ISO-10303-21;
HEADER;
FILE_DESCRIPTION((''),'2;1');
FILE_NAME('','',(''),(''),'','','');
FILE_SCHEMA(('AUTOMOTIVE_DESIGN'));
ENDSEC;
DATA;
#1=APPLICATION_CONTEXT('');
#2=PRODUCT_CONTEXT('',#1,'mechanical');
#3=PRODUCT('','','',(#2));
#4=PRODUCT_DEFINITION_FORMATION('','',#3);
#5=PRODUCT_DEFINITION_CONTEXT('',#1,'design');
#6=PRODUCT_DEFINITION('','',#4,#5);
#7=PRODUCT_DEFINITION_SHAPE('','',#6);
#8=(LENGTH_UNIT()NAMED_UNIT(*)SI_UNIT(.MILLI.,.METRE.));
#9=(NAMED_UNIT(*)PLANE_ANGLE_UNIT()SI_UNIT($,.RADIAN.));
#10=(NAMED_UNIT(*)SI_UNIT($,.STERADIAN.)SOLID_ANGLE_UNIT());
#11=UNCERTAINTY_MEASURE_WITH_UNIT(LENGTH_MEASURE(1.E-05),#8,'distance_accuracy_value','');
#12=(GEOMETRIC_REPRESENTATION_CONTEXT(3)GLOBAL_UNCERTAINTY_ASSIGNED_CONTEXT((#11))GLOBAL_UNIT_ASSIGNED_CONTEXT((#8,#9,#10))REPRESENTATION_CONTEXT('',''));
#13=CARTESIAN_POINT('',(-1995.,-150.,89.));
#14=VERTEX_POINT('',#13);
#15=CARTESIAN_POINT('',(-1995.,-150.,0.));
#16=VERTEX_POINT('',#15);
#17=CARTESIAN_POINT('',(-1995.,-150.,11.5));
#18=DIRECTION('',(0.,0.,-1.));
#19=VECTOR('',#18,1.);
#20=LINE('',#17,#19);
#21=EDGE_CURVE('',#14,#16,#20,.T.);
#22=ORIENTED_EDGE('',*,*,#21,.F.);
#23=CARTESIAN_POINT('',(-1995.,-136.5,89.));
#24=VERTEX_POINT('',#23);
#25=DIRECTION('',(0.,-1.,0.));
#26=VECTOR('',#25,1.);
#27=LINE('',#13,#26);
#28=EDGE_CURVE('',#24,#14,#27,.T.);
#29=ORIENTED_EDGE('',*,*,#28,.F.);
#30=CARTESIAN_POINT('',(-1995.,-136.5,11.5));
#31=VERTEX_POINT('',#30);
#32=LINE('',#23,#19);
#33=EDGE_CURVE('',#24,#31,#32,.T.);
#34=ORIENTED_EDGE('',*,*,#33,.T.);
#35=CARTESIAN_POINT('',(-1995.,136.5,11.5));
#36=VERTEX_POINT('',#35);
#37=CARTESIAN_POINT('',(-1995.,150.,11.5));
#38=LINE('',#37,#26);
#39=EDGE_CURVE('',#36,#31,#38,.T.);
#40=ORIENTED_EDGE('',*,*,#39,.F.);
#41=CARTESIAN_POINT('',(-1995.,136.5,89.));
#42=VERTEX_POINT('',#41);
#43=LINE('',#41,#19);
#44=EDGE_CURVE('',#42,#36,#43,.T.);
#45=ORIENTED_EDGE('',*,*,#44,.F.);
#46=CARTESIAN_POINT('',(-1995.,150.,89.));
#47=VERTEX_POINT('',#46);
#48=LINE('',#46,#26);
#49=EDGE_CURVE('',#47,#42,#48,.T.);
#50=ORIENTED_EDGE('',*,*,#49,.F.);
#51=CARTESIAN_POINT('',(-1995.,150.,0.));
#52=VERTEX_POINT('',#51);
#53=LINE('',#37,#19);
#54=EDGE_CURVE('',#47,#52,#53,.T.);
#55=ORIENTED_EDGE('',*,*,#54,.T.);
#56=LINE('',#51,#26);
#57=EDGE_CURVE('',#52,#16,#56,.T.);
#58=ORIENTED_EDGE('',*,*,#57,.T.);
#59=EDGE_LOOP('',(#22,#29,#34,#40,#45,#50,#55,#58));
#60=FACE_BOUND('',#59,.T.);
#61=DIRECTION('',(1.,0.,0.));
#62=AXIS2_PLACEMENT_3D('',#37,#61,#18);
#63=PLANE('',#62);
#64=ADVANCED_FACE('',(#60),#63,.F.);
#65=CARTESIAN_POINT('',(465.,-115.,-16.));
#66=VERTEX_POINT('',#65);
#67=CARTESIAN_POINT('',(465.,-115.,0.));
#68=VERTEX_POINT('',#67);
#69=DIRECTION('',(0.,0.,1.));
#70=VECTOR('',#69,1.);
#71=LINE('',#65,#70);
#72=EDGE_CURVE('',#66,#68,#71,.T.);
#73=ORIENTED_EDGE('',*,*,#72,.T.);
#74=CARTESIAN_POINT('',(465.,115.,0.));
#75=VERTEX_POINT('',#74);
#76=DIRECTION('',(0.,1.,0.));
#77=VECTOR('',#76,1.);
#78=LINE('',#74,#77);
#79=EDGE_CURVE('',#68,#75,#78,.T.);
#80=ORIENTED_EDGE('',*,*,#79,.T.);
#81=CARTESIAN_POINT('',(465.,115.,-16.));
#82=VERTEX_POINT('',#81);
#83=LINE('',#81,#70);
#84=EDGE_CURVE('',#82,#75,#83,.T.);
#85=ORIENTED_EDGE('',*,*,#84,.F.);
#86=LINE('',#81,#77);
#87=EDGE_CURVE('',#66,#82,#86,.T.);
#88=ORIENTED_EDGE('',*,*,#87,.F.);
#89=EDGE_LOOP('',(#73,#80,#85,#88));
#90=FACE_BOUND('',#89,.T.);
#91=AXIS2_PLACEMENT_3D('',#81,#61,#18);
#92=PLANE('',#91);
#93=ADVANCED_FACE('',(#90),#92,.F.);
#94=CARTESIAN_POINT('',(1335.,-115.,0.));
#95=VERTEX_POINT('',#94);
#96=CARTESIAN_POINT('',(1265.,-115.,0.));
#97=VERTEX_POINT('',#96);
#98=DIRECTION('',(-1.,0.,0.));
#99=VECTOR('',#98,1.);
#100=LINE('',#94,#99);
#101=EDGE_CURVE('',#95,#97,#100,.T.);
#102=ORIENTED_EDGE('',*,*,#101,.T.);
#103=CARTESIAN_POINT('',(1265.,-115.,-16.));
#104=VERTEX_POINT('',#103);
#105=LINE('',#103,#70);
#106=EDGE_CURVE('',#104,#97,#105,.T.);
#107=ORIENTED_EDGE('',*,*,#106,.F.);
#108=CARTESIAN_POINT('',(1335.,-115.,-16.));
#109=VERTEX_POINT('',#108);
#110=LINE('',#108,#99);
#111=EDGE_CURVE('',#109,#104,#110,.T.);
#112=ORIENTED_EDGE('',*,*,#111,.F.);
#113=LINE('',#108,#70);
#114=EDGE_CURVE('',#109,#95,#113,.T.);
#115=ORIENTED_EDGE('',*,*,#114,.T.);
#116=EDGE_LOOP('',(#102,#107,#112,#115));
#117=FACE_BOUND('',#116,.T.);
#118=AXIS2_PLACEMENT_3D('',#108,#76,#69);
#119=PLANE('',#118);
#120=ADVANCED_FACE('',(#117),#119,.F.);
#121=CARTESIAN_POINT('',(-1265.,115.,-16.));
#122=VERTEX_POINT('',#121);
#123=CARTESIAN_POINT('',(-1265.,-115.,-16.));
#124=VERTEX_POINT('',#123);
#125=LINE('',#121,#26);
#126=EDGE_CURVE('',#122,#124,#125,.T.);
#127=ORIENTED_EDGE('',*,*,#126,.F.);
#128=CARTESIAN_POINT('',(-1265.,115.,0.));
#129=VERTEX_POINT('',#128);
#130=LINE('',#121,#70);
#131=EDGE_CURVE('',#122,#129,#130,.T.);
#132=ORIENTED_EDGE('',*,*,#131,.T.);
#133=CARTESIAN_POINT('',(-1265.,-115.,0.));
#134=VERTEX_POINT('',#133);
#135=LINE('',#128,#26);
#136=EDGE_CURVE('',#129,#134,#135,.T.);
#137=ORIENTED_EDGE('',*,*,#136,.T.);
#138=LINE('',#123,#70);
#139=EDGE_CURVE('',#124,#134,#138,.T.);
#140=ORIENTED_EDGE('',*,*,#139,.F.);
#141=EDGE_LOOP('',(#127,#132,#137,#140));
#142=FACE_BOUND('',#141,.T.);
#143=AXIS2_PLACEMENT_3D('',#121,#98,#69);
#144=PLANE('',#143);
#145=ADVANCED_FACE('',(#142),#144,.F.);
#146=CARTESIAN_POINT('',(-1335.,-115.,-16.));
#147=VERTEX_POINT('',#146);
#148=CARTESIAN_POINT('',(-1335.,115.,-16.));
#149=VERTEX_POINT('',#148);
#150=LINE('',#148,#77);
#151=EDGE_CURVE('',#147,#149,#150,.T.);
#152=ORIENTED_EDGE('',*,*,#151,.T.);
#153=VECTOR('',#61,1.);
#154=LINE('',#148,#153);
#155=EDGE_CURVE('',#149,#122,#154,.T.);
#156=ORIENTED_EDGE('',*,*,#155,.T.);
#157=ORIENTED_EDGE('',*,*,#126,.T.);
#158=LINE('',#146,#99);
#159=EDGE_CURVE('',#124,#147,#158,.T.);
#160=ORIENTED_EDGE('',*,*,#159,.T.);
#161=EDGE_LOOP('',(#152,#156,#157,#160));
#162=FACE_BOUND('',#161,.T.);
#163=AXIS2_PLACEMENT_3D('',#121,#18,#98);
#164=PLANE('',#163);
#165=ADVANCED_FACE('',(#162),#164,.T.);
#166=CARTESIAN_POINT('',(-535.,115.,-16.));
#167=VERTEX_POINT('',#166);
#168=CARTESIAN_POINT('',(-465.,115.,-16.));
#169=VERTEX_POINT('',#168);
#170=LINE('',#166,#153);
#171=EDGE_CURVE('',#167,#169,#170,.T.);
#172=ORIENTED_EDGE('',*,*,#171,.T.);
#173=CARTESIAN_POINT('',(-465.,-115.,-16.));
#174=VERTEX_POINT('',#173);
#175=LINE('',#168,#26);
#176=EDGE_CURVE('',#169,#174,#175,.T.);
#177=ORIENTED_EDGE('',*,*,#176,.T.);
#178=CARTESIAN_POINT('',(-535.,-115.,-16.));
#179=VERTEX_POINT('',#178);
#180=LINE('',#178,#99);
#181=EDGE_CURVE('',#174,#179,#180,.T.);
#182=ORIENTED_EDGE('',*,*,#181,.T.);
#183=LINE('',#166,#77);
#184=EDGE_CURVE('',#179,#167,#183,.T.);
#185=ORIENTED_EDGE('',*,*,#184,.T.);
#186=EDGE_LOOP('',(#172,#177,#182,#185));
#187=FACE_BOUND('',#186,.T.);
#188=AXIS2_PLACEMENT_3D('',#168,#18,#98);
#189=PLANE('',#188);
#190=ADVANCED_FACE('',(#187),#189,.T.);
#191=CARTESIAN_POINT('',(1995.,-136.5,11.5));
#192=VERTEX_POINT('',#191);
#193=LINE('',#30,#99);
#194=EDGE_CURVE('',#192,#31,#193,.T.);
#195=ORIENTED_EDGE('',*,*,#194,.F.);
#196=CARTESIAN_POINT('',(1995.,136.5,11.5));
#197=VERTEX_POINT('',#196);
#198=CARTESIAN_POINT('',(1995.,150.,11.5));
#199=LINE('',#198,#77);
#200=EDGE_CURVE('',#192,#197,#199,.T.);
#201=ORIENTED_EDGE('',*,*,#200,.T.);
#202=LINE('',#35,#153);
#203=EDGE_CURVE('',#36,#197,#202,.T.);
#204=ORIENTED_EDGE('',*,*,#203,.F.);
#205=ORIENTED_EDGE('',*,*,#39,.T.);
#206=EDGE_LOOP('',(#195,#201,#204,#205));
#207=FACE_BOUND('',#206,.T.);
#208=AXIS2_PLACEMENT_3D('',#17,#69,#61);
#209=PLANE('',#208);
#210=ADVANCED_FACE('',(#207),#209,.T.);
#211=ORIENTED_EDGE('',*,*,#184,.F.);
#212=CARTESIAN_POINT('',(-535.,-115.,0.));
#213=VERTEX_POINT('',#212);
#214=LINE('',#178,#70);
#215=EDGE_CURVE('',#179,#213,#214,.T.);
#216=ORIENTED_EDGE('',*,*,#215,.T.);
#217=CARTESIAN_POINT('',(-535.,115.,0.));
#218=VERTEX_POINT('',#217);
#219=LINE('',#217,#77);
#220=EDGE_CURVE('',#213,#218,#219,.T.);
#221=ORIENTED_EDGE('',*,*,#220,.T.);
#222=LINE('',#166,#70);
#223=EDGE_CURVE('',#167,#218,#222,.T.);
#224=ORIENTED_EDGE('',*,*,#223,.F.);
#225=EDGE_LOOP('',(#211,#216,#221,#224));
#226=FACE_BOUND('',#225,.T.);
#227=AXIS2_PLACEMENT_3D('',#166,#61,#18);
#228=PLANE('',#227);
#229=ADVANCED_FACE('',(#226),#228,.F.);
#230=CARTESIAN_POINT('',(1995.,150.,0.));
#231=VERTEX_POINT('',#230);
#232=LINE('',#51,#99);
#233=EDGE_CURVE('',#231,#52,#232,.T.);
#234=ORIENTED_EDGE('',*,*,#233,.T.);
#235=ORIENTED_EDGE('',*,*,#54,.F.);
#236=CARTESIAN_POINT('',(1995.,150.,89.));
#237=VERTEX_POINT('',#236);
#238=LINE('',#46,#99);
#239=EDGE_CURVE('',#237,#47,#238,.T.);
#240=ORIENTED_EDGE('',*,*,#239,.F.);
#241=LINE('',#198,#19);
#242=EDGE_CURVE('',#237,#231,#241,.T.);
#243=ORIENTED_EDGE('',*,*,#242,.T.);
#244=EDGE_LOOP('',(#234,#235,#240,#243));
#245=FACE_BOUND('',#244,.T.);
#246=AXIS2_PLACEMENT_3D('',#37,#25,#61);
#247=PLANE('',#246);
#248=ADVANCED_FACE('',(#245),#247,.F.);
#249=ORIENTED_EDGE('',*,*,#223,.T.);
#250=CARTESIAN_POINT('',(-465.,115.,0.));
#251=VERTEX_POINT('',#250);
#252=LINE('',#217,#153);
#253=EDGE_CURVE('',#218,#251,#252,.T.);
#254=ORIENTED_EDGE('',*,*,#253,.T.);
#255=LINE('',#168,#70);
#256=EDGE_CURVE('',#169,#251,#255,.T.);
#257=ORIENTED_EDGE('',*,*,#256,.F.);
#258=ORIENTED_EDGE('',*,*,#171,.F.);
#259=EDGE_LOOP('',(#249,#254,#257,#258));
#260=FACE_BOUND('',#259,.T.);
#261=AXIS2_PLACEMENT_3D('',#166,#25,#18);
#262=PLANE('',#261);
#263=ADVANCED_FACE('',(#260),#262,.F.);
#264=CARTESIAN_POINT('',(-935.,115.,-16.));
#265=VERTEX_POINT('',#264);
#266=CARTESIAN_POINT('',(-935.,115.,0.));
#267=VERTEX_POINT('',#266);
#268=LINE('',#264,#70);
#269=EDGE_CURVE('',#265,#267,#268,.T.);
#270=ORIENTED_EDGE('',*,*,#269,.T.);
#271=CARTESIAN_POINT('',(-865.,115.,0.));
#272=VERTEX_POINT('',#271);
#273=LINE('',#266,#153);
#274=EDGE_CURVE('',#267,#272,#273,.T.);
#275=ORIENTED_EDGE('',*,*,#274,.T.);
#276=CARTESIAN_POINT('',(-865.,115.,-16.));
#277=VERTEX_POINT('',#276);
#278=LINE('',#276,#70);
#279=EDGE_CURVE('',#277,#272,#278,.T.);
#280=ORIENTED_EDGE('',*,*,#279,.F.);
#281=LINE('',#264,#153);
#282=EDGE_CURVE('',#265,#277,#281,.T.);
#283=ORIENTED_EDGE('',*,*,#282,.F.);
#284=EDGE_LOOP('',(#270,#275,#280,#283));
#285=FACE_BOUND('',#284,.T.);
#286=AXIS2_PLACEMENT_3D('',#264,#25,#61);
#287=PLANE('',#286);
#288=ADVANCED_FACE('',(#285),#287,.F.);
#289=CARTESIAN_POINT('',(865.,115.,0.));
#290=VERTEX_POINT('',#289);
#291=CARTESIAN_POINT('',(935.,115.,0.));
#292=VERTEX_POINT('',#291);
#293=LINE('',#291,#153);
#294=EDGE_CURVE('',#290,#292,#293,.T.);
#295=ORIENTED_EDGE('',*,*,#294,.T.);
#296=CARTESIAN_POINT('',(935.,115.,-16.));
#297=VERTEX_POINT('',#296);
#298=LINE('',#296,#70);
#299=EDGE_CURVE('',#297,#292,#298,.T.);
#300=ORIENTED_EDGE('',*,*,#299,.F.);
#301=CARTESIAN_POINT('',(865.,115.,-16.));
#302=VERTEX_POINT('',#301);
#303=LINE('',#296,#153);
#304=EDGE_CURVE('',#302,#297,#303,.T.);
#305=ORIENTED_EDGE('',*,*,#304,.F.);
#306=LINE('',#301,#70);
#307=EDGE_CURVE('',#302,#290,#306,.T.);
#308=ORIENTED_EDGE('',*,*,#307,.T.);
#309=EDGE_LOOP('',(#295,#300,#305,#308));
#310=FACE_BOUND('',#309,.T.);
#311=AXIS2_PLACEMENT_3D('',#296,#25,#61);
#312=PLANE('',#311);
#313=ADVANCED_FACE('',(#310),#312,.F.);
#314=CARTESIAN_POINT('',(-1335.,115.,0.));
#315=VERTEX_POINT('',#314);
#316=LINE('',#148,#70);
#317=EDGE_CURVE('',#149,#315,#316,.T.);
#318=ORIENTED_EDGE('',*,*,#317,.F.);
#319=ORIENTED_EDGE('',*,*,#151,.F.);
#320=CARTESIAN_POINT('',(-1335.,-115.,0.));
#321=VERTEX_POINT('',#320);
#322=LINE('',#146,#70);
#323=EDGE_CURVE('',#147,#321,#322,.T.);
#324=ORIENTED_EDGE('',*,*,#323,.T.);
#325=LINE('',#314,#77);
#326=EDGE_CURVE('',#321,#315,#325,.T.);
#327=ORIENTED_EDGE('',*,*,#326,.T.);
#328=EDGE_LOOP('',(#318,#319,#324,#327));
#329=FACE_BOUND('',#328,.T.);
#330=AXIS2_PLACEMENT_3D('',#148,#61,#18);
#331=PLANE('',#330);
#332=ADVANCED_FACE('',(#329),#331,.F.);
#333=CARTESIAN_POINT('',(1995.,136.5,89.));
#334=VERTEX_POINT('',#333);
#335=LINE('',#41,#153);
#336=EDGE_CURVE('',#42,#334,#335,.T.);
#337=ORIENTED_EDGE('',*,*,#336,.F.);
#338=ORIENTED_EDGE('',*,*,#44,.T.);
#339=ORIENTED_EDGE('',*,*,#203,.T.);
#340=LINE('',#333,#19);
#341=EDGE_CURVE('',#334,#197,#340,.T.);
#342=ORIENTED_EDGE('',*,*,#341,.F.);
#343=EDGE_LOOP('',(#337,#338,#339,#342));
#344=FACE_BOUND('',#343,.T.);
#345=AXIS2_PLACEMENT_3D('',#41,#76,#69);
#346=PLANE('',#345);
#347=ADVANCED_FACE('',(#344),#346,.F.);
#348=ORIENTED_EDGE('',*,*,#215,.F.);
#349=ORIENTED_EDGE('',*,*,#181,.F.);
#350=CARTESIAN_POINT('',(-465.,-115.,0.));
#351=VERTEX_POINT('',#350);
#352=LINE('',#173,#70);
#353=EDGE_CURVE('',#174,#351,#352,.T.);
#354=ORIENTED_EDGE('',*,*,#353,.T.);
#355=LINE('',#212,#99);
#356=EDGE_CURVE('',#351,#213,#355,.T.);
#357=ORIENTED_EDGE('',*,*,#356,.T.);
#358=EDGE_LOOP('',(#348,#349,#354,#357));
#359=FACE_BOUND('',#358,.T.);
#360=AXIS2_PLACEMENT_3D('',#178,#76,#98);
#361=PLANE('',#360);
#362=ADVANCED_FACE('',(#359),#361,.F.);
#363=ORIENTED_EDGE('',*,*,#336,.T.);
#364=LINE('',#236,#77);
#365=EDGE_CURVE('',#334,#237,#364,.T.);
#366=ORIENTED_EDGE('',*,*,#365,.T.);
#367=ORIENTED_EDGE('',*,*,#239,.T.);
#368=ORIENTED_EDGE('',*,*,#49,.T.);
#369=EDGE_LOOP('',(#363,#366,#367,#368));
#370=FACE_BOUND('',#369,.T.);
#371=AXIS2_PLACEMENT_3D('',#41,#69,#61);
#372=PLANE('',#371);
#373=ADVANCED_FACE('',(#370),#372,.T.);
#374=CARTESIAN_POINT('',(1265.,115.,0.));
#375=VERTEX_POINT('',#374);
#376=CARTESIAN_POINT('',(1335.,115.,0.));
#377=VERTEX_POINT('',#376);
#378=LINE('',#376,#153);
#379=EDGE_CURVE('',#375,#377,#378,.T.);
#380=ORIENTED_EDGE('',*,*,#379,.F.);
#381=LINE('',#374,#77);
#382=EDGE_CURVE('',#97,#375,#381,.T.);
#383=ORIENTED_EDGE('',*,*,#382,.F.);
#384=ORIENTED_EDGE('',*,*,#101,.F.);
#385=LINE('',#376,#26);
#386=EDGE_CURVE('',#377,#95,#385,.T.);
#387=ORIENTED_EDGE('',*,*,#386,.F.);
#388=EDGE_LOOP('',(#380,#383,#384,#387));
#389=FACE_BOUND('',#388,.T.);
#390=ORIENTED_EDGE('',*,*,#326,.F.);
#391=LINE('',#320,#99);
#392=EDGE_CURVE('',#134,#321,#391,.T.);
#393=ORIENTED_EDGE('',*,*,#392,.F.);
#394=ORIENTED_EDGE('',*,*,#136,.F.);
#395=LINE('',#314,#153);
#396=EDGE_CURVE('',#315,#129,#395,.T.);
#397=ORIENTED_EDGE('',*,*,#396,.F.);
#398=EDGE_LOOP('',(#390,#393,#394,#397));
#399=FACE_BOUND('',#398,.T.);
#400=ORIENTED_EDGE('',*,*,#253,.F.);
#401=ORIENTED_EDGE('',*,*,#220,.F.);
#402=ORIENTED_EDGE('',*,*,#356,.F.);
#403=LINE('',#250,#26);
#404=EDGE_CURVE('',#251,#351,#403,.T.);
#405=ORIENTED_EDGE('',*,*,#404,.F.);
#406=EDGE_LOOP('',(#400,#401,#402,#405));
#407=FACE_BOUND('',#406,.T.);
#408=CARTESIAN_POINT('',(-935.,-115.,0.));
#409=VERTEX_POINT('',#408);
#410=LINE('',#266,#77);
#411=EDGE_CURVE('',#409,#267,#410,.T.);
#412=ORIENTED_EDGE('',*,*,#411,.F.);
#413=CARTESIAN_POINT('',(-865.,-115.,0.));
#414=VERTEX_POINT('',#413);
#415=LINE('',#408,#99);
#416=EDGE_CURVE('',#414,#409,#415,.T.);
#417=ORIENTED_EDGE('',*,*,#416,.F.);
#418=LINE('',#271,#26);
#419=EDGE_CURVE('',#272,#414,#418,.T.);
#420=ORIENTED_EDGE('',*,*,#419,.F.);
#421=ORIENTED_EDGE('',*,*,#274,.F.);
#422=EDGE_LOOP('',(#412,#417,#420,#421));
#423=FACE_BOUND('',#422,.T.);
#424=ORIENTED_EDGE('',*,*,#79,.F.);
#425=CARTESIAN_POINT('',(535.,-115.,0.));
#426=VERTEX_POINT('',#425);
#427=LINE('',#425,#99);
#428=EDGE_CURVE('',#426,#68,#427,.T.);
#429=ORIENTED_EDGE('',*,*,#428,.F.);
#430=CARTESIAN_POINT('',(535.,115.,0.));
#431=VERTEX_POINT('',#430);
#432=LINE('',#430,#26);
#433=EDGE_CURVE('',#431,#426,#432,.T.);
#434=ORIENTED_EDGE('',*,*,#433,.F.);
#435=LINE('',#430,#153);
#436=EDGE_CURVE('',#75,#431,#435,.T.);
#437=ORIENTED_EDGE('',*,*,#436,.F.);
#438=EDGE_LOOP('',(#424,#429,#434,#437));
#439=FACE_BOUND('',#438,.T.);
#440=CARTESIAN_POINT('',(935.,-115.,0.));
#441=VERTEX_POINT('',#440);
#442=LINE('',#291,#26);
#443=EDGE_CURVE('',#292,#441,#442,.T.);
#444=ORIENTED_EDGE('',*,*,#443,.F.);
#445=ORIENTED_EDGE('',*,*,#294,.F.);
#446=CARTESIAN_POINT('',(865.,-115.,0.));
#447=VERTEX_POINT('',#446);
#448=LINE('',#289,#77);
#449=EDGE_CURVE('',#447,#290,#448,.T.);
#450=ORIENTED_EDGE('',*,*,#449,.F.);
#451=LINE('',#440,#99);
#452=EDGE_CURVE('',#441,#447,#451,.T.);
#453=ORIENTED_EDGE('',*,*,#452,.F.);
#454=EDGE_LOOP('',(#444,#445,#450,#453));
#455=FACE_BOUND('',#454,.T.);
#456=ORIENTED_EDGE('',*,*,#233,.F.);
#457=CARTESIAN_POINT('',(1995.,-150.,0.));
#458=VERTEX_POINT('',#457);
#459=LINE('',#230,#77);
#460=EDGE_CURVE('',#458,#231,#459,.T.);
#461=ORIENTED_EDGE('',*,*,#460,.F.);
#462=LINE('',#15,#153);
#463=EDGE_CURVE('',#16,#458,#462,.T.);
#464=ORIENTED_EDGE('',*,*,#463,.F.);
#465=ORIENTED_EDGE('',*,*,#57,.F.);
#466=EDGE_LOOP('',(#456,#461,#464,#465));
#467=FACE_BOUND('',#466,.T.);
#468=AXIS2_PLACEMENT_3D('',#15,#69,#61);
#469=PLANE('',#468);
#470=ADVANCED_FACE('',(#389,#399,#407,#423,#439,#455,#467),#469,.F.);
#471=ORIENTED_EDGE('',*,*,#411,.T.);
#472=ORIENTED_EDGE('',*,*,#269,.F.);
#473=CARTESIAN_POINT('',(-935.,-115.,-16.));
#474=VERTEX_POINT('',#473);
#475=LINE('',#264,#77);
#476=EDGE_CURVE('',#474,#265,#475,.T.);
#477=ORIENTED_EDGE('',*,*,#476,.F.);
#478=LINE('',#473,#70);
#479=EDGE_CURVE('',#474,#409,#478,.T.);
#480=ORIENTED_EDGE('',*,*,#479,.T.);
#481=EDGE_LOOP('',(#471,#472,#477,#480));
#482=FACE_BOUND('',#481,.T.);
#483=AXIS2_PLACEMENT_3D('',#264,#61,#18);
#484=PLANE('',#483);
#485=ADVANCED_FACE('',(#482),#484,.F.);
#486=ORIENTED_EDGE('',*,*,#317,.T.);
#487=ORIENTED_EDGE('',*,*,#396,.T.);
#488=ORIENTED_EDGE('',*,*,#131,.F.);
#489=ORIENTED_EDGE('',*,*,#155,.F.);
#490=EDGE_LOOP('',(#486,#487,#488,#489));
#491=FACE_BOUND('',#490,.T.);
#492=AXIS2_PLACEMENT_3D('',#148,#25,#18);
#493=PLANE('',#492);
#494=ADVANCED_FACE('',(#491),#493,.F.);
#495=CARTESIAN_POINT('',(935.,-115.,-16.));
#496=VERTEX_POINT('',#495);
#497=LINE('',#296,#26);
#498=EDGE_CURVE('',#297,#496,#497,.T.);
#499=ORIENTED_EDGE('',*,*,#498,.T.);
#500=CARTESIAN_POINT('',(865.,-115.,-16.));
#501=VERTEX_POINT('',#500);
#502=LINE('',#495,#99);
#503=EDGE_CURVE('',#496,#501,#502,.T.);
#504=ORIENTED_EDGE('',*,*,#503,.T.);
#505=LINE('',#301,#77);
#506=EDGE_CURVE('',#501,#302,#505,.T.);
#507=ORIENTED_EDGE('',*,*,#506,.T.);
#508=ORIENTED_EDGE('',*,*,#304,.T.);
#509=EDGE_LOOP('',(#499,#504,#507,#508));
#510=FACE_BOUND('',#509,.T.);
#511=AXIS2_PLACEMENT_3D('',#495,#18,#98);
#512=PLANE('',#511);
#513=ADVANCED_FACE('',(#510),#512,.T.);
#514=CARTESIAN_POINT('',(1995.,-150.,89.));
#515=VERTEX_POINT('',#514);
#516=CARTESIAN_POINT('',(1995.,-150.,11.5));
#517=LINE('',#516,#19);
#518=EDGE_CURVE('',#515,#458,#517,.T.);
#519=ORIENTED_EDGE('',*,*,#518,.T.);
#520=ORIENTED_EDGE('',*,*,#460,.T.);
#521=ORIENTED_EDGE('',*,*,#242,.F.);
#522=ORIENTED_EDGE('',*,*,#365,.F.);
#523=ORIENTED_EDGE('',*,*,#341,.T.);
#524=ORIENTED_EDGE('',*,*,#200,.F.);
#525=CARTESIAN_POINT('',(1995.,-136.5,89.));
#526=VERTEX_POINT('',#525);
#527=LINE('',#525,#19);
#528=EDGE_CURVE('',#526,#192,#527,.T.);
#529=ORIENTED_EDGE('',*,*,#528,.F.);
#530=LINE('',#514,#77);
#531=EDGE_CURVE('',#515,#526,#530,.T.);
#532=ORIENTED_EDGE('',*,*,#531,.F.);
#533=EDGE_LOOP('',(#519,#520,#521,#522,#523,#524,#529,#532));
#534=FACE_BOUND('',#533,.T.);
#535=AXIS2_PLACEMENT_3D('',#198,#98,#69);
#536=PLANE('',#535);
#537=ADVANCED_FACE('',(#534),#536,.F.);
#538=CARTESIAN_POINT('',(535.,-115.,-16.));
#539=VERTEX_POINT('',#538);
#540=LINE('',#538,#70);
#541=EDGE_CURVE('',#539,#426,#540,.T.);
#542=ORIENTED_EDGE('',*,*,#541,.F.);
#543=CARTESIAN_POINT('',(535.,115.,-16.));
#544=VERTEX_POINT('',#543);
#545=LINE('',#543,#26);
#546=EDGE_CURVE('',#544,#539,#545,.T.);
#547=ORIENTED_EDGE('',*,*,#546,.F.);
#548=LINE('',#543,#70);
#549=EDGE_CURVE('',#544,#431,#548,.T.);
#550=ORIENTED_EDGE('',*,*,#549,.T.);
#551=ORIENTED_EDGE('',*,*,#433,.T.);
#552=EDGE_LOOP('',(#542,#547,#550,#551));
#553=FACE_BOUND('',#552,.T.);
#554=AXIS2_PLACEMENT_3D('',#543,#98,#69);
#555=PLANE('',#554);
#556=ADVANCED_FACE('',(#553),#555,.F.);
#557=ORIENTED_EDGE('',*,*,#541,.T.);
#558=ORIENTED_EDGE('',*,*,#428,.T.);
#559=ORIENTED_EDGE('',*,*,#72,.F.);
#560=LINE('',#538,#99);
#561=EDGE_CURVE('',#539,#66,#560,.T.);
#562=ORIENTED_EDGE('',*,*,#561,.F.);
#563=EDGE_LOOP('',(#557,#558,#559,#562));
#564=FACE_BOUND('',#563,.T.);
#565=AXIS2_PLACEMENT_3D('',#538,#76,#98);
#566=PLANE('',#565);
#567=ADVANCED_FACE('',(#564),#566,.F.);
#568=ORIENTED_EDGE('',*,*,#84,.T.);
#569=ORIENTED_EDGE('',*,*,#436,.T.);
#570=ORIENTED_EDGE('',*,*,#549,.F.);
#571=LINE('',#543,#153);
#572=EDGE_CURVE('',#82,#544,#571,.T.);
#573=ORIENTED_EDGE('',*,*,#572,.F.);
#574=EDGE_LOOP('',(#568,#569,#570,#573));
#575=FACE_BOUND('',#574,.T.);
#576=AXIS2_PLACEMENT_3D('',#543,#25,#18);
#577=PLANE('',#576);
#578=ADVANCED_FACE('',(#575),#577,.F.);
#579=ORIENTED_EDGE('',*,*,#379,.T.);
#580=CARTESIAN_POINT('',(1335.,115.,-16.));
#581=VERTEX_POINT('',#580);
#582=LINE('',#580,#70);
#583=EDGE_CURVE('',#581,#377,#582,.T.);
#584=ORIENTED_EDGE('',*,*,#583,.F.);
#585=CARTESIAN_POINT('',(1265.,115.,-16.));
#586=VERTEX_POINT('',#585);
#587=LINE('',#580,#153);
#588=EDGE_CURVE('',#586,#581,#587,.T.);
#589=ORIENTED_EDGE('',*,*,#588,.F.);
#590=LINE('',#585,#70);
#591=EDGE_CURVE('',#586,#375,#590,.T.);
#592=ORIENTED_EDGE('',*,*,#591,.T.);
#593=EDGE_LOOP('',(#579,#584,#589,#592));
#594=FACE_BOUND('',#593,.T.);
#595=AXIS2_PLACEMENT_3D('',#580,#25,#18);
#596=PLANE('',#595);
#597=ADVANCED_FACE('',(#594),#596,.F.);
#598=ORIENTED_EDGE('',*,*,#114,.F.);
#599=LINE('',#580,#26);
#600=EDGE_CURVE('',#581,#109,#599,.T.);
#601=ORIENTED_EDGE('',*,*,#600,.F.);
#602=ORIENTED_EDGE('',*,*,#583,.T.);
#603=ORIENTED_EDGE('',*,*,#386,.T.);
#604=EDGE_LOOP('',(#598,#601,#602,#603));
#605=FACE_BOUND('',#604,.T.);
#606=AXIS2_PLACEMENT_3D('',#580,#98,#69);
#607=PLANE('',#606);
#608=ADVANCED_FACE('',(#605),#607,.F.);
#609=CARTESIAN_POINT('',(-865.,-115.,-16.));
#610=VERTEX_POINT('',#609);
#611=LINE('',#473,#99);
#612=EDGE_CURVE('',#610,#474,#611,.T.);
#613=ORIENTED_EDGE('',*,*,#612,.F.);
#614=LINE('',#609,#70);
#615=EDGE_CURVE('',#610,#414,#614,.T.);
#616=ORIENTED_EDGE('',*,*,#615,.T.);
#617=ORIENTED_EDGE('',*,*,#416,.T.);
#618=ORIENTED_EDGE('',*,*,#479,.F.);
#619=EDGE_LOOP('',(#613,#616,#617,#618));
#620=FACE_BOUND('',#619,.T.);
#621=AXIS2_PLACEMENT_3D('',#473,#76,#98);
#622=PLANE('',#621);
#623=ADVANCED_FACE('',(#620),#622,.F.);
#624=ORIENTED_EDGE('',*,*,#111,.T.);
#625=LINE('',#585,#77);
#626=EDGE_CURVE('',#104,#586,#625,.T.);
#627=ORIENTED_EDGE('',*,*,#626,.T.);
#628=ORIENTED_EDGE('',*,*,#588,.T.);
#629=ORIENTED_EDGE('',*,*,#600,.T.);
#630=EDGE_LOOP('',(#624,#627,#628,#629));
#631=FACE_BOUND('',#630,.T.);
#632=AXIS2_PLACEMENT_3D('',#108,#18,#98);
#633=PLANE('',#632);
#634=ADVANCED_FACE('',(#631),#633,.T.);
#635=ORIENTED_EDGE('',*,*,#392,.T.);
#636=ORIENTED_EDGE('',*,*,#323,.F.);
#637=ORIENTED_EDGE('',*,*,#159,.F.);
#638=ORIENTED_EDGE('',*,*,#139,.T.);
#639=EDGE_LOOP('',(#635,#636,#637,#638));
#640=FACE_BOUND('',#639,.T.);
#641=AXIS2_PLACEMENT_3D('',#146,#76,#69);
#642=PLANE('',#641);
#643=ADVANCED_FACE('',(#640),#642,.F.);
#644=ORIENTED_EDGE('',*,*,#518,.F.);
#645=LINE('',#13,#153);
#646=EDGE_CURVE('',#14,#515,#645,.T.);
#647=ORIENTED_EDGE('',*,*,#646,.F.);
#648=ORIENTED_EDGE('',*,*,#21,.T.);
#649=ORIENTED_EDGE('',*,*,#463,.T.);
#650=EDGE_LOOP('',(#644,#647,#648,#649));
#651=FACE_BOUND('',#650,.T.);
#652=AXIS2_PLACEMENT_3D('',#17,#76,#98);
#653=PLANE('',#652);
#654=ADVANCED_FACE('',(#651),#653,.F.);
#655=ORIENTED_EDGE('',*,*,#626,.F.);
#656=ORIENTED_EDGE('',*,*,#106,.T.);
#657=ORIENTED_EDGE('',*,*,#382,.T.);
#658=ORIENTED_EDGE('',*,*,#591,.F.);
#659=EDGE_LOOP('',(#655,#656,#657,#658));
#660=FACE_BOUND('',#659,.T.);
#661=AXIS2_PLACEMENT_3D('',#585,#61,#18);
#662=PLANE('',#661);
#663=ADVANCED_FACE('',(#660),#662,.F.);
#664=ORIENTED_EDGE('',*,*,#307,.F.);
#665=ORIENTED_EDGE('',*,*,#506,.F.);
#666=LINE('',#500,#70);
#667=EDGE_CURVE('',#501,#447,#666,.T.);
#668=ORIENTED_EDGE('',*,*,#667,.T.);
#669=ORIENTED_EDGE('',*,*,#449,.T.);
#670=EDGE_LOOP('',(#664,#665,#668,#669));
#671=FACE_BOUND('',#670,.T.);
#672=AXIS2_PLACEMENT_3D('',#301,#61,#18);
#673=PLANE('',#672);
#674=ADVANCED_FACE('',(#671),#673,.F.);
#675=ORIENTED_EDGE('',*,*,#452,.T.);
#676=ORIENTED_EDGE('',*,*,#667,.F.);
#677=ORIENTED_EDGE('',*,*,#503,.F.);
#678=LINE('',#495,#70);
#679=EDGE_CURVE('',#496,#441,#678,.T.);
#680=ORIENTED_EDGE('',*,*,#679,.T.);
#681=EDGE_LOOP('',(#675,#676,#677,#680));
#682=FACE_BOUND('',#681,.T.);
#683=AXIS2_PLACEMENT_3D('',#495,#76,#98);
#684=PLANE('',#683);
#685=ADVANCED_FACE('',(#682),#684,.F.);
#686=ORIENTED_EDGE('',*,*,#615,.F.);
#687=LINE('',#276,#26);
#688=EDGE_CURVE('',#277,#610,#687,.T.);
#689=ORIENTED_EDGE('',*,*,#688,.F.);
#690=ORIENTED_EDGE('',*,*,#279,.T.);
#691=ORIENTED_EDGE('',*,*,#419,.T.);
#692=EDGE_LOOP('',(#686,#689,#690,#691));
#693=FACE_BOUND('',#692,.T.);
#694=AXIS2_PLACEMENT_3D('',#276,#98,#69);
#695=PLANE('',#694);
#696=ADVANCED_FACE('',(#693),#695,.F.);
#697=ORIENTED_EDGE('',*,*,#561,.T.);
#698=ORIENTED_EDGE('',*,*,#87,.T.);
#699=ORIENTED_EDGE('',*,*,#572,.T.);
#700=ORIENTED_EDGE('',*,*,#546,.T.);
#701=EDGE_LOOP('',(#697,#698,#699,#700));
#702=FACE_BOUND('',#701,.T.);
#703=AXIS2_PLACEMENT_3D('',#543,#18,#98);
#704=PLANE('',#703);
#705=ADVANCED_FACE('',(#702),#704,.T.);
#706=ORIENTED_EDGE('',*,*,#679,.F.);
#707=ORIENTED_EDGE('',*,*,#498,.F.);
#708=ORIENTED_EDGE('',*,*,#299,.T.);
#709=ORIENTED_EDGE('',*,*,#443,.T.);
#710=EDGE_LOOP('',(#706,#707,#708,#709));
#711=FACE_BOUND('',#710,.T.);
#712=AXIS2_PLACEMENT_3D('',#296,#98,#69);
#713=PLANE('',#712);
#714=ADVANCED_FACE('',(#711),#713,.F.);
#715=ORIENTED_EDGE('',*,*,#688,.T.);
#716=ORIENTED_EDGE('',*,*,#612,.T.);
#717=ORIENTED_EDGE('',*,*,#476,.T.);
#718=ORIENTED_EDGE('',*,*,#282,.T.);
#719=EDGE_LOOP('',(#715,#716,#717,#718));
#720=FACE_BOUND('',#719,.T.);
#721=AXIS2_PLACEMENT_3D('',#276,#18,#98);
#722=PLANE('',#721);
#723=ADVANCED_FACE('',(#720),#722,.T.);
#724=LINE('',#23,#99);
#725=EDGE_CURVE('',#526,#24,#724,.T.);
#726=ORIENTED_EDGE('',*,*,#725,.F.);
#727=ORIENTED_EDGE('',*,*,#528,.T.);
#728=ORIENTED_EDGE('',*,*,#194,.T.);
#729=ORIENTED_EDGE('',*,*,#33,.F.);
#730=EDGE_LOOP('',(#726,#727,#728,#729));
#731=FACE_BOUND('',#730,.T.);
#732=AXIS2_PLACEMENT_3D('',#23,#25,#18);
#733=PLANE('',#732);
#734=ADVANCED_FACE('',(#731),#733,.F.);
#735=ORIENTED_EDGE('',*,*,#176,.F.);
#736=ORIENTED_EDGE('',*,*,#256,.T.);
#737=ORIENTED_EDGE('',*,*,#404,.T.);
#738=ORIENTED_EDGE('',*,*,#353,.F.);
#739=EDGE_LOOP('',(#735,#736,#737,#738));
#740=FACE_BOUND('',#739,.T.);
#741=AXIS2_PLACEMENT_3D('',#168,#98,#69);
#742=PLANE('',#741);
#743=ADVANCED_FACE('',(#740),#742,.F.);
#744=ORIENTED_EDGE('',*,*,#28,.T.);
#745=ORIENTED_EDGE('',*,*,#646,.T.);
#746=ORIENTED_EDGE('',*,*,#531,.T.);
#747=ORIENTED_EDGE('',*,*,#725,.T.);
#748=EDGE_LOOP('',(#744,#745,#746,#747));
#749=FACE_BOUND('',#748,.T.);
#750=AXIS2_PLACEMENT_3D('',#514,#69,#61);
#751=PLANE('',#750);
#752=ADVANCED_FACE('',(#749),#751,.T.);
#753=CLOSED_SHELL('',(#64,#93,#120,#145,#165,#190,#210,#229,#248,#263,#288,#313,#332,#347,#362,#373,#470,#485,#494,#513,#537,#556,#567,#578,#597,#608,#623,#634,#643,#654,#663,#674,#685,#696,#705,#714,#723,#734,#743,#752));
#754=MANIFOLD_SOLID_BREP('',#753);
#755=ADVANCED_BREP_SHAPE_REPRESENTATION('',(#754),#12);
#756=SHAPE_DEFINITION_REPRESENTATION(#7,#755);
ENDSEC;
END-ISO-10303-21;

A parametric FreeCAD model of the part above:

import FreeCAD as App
import Part
import Sketcher
Q = App.Units.Quantity


def add_polygon(sketch, points):
    """Adds a closed chain of lines whose ends are joined by coincident constraints."""
    first, n = sketch.GeometryCount, len(points)
    for a, b in zip(points, points[1:] + points[:1]):
        sketch.addGeometry(Part.LineSegment(App.Vector(*a, 0), App.Vector(*b, 0)), False)
    for i in range(n):
        sketch.addConstraint(Sketcher.Constraint("Coincident", first + i, 2, first + (i + 1) % n, 1))

doc = App.newDocument("Part")
body = doc.addObject("PartDesign::Body", "Body")

# Sketch on XY plane
sketch1 = doc.addObject("Sketcher::SketchObject", "Sketch")
body.addObject(sketch1)
sketch1.AttachmentSupport = (doc.XY_Plane, [""])
sketch1.MapMode = "FlatFace"
add_polygon(sketch1, [(-1995, 150), (-1995, -150), (1995, -150), (1995, 150)])  # lines 0-3
sketch1.addGeometry(Part.Circle(App.Vector(-1940, -80, 0), App.Vector(0, 0, 1), 13), False)  # 4
sketch1.addGeometry(Part.Circle(App.Vector(-1860, -80, 0), App.Vector(0, 0, 1), 13), False)  # 5
sketch1.addGeometry(Part.Circle(App.Vector(-1780, -80, 0), App.Vector(0, 0, 1), 13), False)  # 6
sketch1.addGeometry(Part.Circle(App.Vector(-1700, -80, 0), App.Vector(0, 0, 1), 13), False)  # 7
sketch1.addGeometry(Part.Circle(App.Vector(-140, -80, 0), App.Vector(0, 0, 1), 13), False)  # 8
sketch1.addGeometry(Part.Circle(App.Vector(-60, -80, 0), App.Vector(0, 0, 1), 13), False)  # 9
sketch1.addGeometry(Part.Circle(App.Vector(60, -80, 0), App.Vector(0, 0, 1), 13), False)  # 10
sketch1.addGeometry(Part.Circle(App.Vector(140, -80, 0), App.Vector(0, 0, 1), 13), False)  # 11
sketch1.addGeometry(Part.Circle(App.Vector(1700, -80, 0), App.Vector(0, 0, 1), 13), False)  # 12
sketch1.addGeometry(Part.Circle(App.Vector(1780, -80, 0), App.Vector(0, 0, 1), 13), False)  # 13
sketch1.addGeometry(Part.Circle(App.Vector(1860, -80, 0), App.Vector(0, 0, 1), 13), False)  # 14
sketch1.addGeometry(Part.Circle(App.Vector(1940, -80, 0), App.Vector(0, 0, 1), 13), False)  # 15
sketch1.addGeometry(Part.Circle(App.Vector(-1940, 0, 0), App.Vector(0, 0, 1), 13), False)  # 16
sketch1.addGeometry(Part.Circle(App.Vector(-1860, 0, 0), App.Vector(0, 0, 1), 13), False)  # 17
sketch1.addGeometry(Part.Circle(App.Vector(-1780, 0, 0), App.Vector(0, 0, 1), 13), False)  # 18
sketch1.addGeometry(Part.Circle(App.Vector(-1700, 0, 0), App.Vector(0, 0, 1), 13), False)  # 19
sketch1.addGeometry(Part.Circle(App.Vector(-1940, 80, 0), App.Vector(0, 0, 1), 13), False)  # 20
sketch1.addGeometry(Part.Circle(App.Vector(-1860, 80, 0), App.Vector(0, 0, 1), 13), False)  # 21
sketch1.addGeometry(Part.Circle(App.Vector(-1780, 80, 0), App.Vector(0, 0, 1), 13), False)  # 22
sketch1.addGeometry(Part.Circle(App.Vector(-1700, 80, 0), App.Vector(0, 0, 1), 13), False)  # 23
sketch1.addGeometry(Part.Circle(App.Vector(-140, 80, 0), App.Vector(0, 0, 1), 13), False)  # 24
sketch1.addGeometry(Part.Circle(App.Vector(-60, 80, 0), App.Vector(0, 0, 1), 13), False)  # 25
sketch1.addGeometry(Part.Circle(App.Vector(1700, 0, 0), App.Vector(0, 0, 1), 13), False)  # 26
sketch1.addGeometry(Part.Circle(App.Vector(1780, 0, 0), App.Vector(0, 0, 1), 13), False)  # 27
sketch1.addGeometry(Part.Circle(App.Vector(1860, 0, 0), App.Vector(0, 0, 1), 13), False)  # 28
sketch1.addGeometry(Part.Circle(App.Vector(1940, 0, 0), App.Vector(0, 0, 1), 13), False)  # 29
sketch1.addGeometry(Part.Circle(App.Vector(60, 80, 0), App.Vector(0, 0, 1), 13), False)  # 30
sketch1.addGeometry(Part.Circle(App.Vector(140, 80, 0), App.Vector(0, 0, 1), 13), False)  # 31
sketch1.addGeometry(Part.Circle(App.Vector(1700, 80, 0), App.Vector(0, 0, 1), 13), False)  # 32
sketch1.addGeometry(Part.Circle(App.Vector(1780, 80, 0), App.Vector(0, 0, 1), 13), False)  # 33
sketch1.addGeometry(Part.Circle(App.Vector(1860, 80, 0), App.Vector(0, 0, 1), 13), False)  # 34
sketch1.addGeometry(Part.Circle(App.Vector(1940, 80, 0), App.Vector(0, 0, 1), 13), False)  # 35
sketch1.addConstraint([
    Sketcher.Constraint("Vertical", 0),
    Sketcher.Constraint("Horizontal", 1),
    Sketcher.Constraint("Vertical", 2),
    Sketcher.Constraint("Horizontal", 3),
    Sketcher.Constraint("Equal", 4, 5),
    Sketcher.Constraint("Equal", 5, 6),
    Sketcher.Constraint("Equal", 6, 7),
    Sketcher.Constraint("Equal", 7, 8),
    Sketcher.Constraint("Equal", 8, 9),
    Sketcher.Constraint("Equal", 9, 10),
    Sketcher.Constraint("Equal", 10, 11),
    Sketcher.Constraint("Equal", 11, 12),
    Sketcher.Constraint("Equal", 12, 13),
    Sketcher.Constraint("Equal", 13, 14),
    Sketcher.Constraint("Equal", 14, 15),
    Sketcher.Constraint("Equal", 15, 16),
    Sketcher.Constraint("Equal", 16, 17),
    Sketcher.Constraint("Equal", 17, 18),
    Sketcher.Constraint("Equal", 18, 19),
    Sketcher.Constraint("Equal", 19, 20),
    Sketcher.Constraint("Equal", 20, 21),
    Sketcher.Constraint("Equal", 21, 22),
    Sketcher.Constraint("Equal", 22, 23),
    Sketcher.Constraint("Equal", 23, 24),
    Sketcher.Constraint("Equal", 24, 25),
    Sketcher.Constraint("Equal", 25, 26),
    Sketcher.Constraint("Equal", 26, 27),
    Sketcher.Constraint("Equal", 27, 28),
    Sketcher.Constraint("Equal", 28, 29),
    Sketcher.Constraint("Equal", 29, 30),
    Sketcher.Constraint("Equal", 30, 31),
    Sketcher.Constraint("Equal", 31, 32),
    Sketcher.Constraint("Equal", 32, 33),
    Sketcher.Constraint("Equal", 33, 34),
    Sketcher.Constraint("Equal", 34, 35),
    Sketcher.Constraint("Symmetric", 15, 3, 20, 3, -1, 1),
    Sketcher.Constraint("Symmetric", 14, 3, 21, 3, -1, 1),
    Sketcher.Constraint("Symmetric", 13, 3, 22, 3, -1, 1),
    Sketcher.Constraint("Symmetric", 12, 3, 23, 3, -1, 1),
    Sketcher.Constraint("Symmetric", 11, 3, 24, 3, -1, 1),
    Sketcher.Constraint("Symmetric", 10, 3, 25, 3, -1, 1),
    Sketcher.Constraint("Symmetric", 19, 3, 26, 3, -1, 1),
    Sketcher.Constraint("Symmetric", 18, 3, 27, 3, -1, 1),
    Sketcher.Constraint("Symmetric", 17, 3, 28, 3, -1, 1),
    Sketcher.Constraint("Symmetric", 16, 3, 29, 3, -1, 1),
    Sketcher.Constraint("Symmetric", 9, 3, 30, 3, -1, 1),
    Sketcher.Constraint("Symmetric", 8, 3, 31, 3, -1, 1),
    Sketcher.Constraint("Symmetric", 7, 3, 32, 3, -1, 1),
    Sketcher.Constraint("Symmetric", 6, 3, 33, 3, -1, 1),
    Sketcher.Constraint("Symmetric", 5, 3, 34, 3, -1, 1),
    Sketcher.Constraint("Symmetric", 4, 3, 35, 3, -1, 1),
    Sketcher.Constraint("Symmetric", 0, 2, 2, 2, -1, 1),
    Sketcher.Constraint("Symmetric", 9, 3, 10, 3, -2),
    Sketcher.Constraint("Symmetric", 8, 3, 11, 3, -2),
    Sketcher.Constraint("Symmetric", 7, 3, 12, 3, -2),
    Sketcher.Constraint("Symmetric", 6, 3, 13, 3, -2),
    Sketcher.Constraint("Symmetric", 5, 3, 14, 3, -2),
    Sketcher.Constraint("Symmetric", 4, 3, 15, 3, -2),
    Sketcher.Constraint("PointOnObject", 16, 3, -1),
    Sketcher.Constraint("PointOnObject", 17, 3, -1),
    Sketcher.Constraint("PointOnObject", 18, 3, -1),
    Sketcher.Constraint("PointOnObject", 19, 3, -1),
    Sketcher.Constraint("Horizontal", 4, 3, 5, 3),
    Sketcher.Constraint("Horizontal", 5, 3, 6, 3),
    Sketcher.Constraint("Horizontal", 6, 3, 7, 3),
    Sketcher.Constraint("Horizontal", 7, 3, 8, 3),
    Sketcher.Constraint("Horizontal", 8, 3, 9, 3),
    Sketcher.Constraint("Vertical", 4, 3, 16, 3),
    Sketcher.Constraint("Vertical", 5, 3, 17, 3),
    Sketcher.Constraint("Vertical", 6, 3, 18, 3),
    Sketcher.Constraint("Vertical", 7, 3, 19, 3),
    Sketcher.Constraint("Diameter", 4, Q("26 mm")),
    Sketcher.Constraint("DistanceX", 1, 1, 1, 2, Q("3990 mm")),
    Sketcher.Constraint("DistanceY", 0, 2, 0, 1, Q("300 mm")),
    Sketcher.Constraint("DistanceX", 4, 3, -1, 1, Q("1940 mm")),
    Sketcher.Constraint("DistanceY", 4, 3, -1, 1, Q("80 mm")),
    Sketcher.Constraint("DistanceX", 5, 3, -1, 1, Q("1860 mm")),
    Sketcher.Constraint("DistanceX", 6, 3, -1, 1, Q("1780 mm")),
    Sketcher.Constraint("DistanceX", 7, 3, -1, 1, Q("1700 mm")),
    Sketcher.Constraint("DistanceX", 8, 3, -1, 1, Q("140 mm")),
    Sketcher.Constraint("DistanceX", 9, 3, -1, 1, Q("60 mm")),
])
pad1 = doc.addObject("PartDesign::Pad", "Pad")
body.addObject(pad1)
pad1.Profile = sketch1
pad1.Length = 11.5

# Sketch on XY plane
sketch2 = doc.addObject("Sketcher::SketchObject", "Sketch001")
body.addObject(sketch2)
sketch2.AttachmentSupport = (doc.XY_Plane, [""])
sketch2.MapMode = "FlatFace"
sketch2.AttachmentOffset = App.Placement(App.Vector(0, 0, 11.5), App.Rotation())
add_polygon(sketch2, [(-1995, 150), (-1995, 136.5), (1995, 136.5), (1995, 150)])  # lines 0-3
add_polygon(sketch2, [(-1995, -136.5), (-1995, -150), (1995, -150), (1995, -136.5)])  # lines 4-7
sketch2.addConstraint([
    Sketcher.Constraint("Vertical", 0),
    Sketcher.Constraint("Horizontal", 1),
    Sketcher.Constraint("Vertical", 2),
    Sketcher.Constraint("Horizontal", 3),
    Sketcher.Constraint("Vertical", 4),
    Sketcher.Constraint("Horizontal", 5),
    Sketcher.Constraint("Vertical", 6),
    Sketcher.Constraint("Horizontal", 7),
    Sketcher.Constraint("Symmetric", 2, 2, 4, 2, -1, 1),
    Sketcher.Constraint("Symmetric", 0, 2, 6, 2, -1, 1),
    Sketcher.Constraint("Vertical", 3, 2, 4, 2),
    Sketcher.Constraint("DistanceX", 1, 1, 1, 2, Q("3990 mm")),
    Sketcher.Constraint("DistanceY", 0, 2, 0, 1, Q("13.5 mm")),
    Sketcher.Constraint("DistanceY", -1, 1, 2, 2, Q("150 mm")),
])
pad2 = doc.addObject("PartDesign::Pad", "Pad001")
body.addObject(pad2)
pad2.Profile = sketch2
pad2.Length = 77.5

# Sketch on XY plane
sketch3 = doc.addObject("Sketcher::SketchObject", "Sketch002")
body.addObject(sketch3)
sketch3.AttachmentSupport = (doc.XY_Plane, [""])
sketch3.MapMode = "FlatFace"
add_polygon(sketch3, [(1335, 115), (1335, -115), (1265, -115), (1265, 115)])  # lines 0-3
add_polygon(sketch3, [(935, 115), (935, -115), (865, -115), (865, 115)])  # lines 4-7
add_polygon(sketch3, [(535, 115), (535, -115), (465, -115), (465, 115)])  # lines 8-11
add_polygon(sketch3, [(-465, 115), (-465, -115), (-535, -115), (-535, 115)])  # lines 12-15
add_polygon(sketch3, [(-865, 115), (-865, -115), (-935, -115), (-935, 115)])  # lines 16-19
add_polygon(sketch3, [(-1265, 115), (-1265, -115), (-1335, -115), (-1335, 115)])  # lines 20-23
sketch3.addConstraint([
    Sketcher.Constraint("Vertical", 0),
    Sketcher.Constraint("Horizontal", 1),
    Sketcher.Constraint("Vertical", 2),
    Sketcher.Constraint("Horizontal", 3),
    Sketcher.Constraint("Vertical", 4),
    Sketcher.Constraint("Horizontal", 5),
    Sketcher.Constraint("Vertical", 6),
    Sketcher.Constraint("Horizontal", 7),
    Sketcher.Constraint("Vertical", 8),
    Sketcher.Constraint("Horizontal", 9),
    Sketcher.Constraint("Vertical", 10),
    Sketcher.Constraint("Horizontal", 11),
    Sketcher.Constraint("Vertical", 12),
    Sketcher.Constraint("Horizontal", 13),
    Sketcher.Constraint("Vertical", 14),
    Sketcher.Constraint("Horizontal", 15),
    Sketcher.Constraint("Vertical", 16),
    Sketcher.Constraint("Horizontal", 17),
    Sketcher.Constraint("Vertical", 18),
    Sketcher.Constraint("Horizontal", 19),
    Sketcher.Constraint("Vertical", 20),
    Sketcher.Constraint("Horizontal", 21),
    Sketcher.Constraint("Vertical", 22),
    Sketcher.Constraint("Horizontal", 23),
    Sketcher.Constraint("Symmetric", 10, 2, 12, 2, -1, 1),
    Sketcher.Constraint("Symmetric", 8, 2, 14, 2, -1, 1),
    Sketcher.Constraint("Symmetric", 6, 2, 16, 2, -1, 1),
    Sketcher.Constraint("Symmetric", 4, 2, 18, 2, -1, 1),
    Sketcher.Constraint("Symmetric", 2, 2, 20, 2, -1, 1),
    Sketcher.Constraint("Symmetric", 0, 2, 22, 2, -1, 1),
    Sketcher.Constraint("Horizontal", 1, 2, 4, 2),
    Sketcher.Constraint("Horizontal", 3, 2, 6, 2),
    Sketcher.Constraint("Horizontal", 5, 2, 8, 2),
    Sketcher.Constraint("Horizontal", 7, 2, 10, 2),
    Sketcher.Constraint("Horizontal", 9, 2, 12, 2),
    Sketcher.Constraint("Equal", 3, 5),
    Sketcher.Constraint("Equal", 7, 9),
    Sketcher.Constraint("DistanceX", 1, 2, 1, 1, Q("70 mm")),
    Sketcher.Constraint("DistanceY", 0, 2, 0, 1, Q("230 mm")),
    Sketcher.Constraint("DistanceX", -1, 1, 0, 2, Q("1335 mm")),
    Sketcher.Constraint("DistanceX", -1, 1, 4, 2, Q("935 mm")),
    Sketcher.Constraint("DistanceX", -1, 1, 8, 2, Q("535 mm")),
])
pad3 = doc.addObject("PartDesign::Pad", "Pad002")
body.addObject(pad3)
pad3.Profile = sketch3
pad3.Length = 16
pad3.Reversed = True

# Sketch on XY plane
sketch4 = doc.addObject("Sketcher::SketchObject", "Sketch003")
body.addObject(sketch4)
sketch4.AttachmentSupport = (doc.XY_Plane, [""])
sketch4.MapMode = "FlatFace"
sketch4.AttachmentOffset = App.Placement(App.Vector(0, 0, -16), App.Rotation())
sketch4.addGeometry([
    Part.Circle(App.Vector(1300, 0, 0), App.Vector(0, 0, 1), 13),  # 0
    Part.Circle(App.Vector(1300, 80, 0), App.Vector(0, 0, 1), 13),  # 1
    Part.Circle(App.Vector(900, 80, 0), App.Vector(0, 0, 1), 13),  # 2
    Part.Circle(App.Vector(900, 0, 0), App.Vector(0, 0, 1), 13),  # 3
    Part.Circle(App.Vector(500, 80, 0), App.Vector(0, 0, 1), 13),  # 4
    Part.Circle(App.Vector(500, 0, 0), App.Vector(0, 0, 1), 13),  # 5
    Part.Circle(App.Vector(500, -80, 0), App.Vector(0, 0, 1), 13),  # 6
    Part.Circle(App.Vector(900, -80, 0), App.Vector(0, 0, 1), 13),  # 7
    Part.Circle(App.Vector(1300, -80, 0), App.Vector(0, 0, 1), 13),  # 8
    Part.Circle(App.Vector(-1300, -80, 0), App.Vector(0, 0, 1), 13),  # 9
    Part.Circle(App.Vector(-900, -80, 0), App.Vector(0, 0, 1), 13),  # 10
    Part.Circle(App.Vector(-500, -80, 0), App.Vector(0, 0, 1), 13),  # 11
    Part.Circle(App.Vector(-500, 0, 0), App.Vector(0, 0, 1), 13),  # 12
    Part.Circle(App.Vector(-500, 80, 0), App.Vector(0, 0, 1), 13),  # 13
    Part.Circle(App.Vector(-900, 0, 0), App.Vector(0, 0, 1), 13),  # 14
    Part.Circle(App.Vector(-900, 80, 0), App.Vector(0, 0, 1), 13),  # 15
    Part.Circle(App.Vector(-1300, 80, 0), App.Vector(0, 0, 1), 13),  # 16
    Part.Circle(App.Vector(-1300, 0, 0), App.Vector(0, 0, 1), 13),  # 17
], False)
sketch4.addConstraint([
    Sketcher.Constraint("Equal", 0, 1),
    Sketcher.Constraint("Equal", 1, 2),
    Sketcher.Constraint("Equal", 2, 3),
    Sketcher.Constraint("Equal", 3, 4),
    Sketcher.Constraint("Equal", 4, 5),
    Sketcher.Constraint("Equal", 5, 6),
    Sketcher.Constraint("Equal", 6, 7),
    Sketcher.Constraint("Equal", 7, 8),
    Sketcher.Constraint("Equal", 8, 9),
    Sketcher.Constraint("Equal", 9, 10),
    Sketcher.Constraint("Equal", 10, 11),
    Sketcher.Constraint("Equal", 11, 12),
    Sketcher.Constraint("Equal", 12, 13),
    Sketcher.Constraint("Equal", 13, 14),
    Sketcher.Constraint("Equal", 14, 15),
    Sketcher.Constraint("Equal", 15, 16),
    Sketcher.Constraint("Equal", 16, 17),
    Sketcher.Constraint("Symmetric", 1, 3, 9, 3, -1, 1),
    Sketcher.Constraint("Symmetric", 2, 3, 10, 3, -1, 1),
    Sketcher.Constraint("Symmetric", 4, 3, 11, 3, -1, 1),
    Sketcher.Constraint("Symmetric", 5, 3, 12, 3, -1, 1),
    Sketcher.Constraint("Symmetric", 6, 3, 13, 3, -1, 1),
    Sketcher.Constraint("Symmetric", 3, 3, 14, 3, -1, 1),
    Sketcher.Constraint("Symmetric", 7, 3, 15, 3, -1, 1),
    Sketcher.Constraint("Symmetric", 8, 3, 16, 3, -1, 1),
    Sketcher.Constraint("Symmetric", 0, 3, 17, 3, -1, 1),
    Sketcher.Constraint("Symmetric", 8, 3, 9, 3, -2),
    Sketcher.Constraint("Symmetric", 7, 3, 10, 3, -2),
    Sketcher.Constraint("Symmetric", 6, 3, 11, 3, -2),
    Sketcher.Constraint("PointOnObject", 0, 3, -1),
    Sketcher.Constraint("PointOnObject", 3, 3, -1),
    Sketcher.Constraint("PointOnObject", 5, 3, -1),
    Sketcher.Constraint("Horizontal", 1, 3, 2, 3),
    Sketcher.Constraint("Horizontal", 2, 3, 4, 3),
    Sketcher.Constraint("Vertical", 0, 3, 1, 3),
    Sketcher.Constraint("Vertical", 2, 3, 3, 3),
    Sketcher.Constraint("Vertical", 4, 3, 5, 3),
    Sketcher.Constraint("Diameter", 0, Q("26 mm")),
    Sketcher.Constraint("DistanceX", -1, 1, 0, 3, Q("1300 mm")),
    Sketcher.Constraint("DistanceY", -1, 1, 1, 3, Q("80 mm")),
    Sketcher.Constraint("DistanceX", -1, 1, 2, 3, Q("900 mm")),
    Sketcher.Constraint("DistanceX", -1, 1, 4, 3, Q("500 mm")),
])
pocket1 = doc.addObject("PartDesign::Pocket", "Pocket")
body.addObject(pocket1)
pocket1.Profile = sketch4
pocket1.Type = "ThroughAll"
pocket1.Reversed = True

# Sketch on XY plane
sketch5 = doc.addObject("Sketcher::SketchObject", "Sketch004")
body.addObject(sketch5)
sketch5.AttachmentSupport = (doc.XY_Plane, [""])
sketch5.MapMode = "FlatFace"
sketch5.AttachmentOffset = App.Placement(App.Vector(0, 0, 11.5), App.Rotation())
add_polygon(sketch5, [(-1995, 136.5), (-1995, -136.5), (1995, -136.5), (1995, 136.5)])  # lines 0-3
sketch5.addConstraint([
    Sketcher.Constraint("Vertical", 0),
    Sketcher.Constraint("Horizontal", 1),
    Sketcher.Constraint("Vertical", 2),
    Sketcher.Constraint("Horizontal", 3),
    Sketcher.Constraint("Symmetric", 0, 2, 2, 2, -1, 1),
    Sketcher.Constraint("DistanceX", 1, 1, 1, 2, Q("3990 mm")),
    Sketcher.Constraint("DistanceY", 0, 2, 0, 1, Q("273 mm")),
])
pad4 = doc.addObject("PartDesign::Pad", "Pad003")
body.addObject(pad4)
pad4.Profile = sketch5
pad4.Length = 11.5
pad4.Reversed = True

# Sketch on XY plane
sketch6 = doc.addObject("Sketcher::SketchObject", "Sketch005")
body.addObject(sketch6)
sketch6.AttachmentSupport = (doc.XY_Plane, [""])
sketch6.MapMode = "FlatFace"
add_polygon(sketch6, [(1335, 115), (1335, -115), (1265, -115), (1265, 115)])  # lines 0-3
add_polygon(sketch6, [(935, 115), (935, -115), (865, -115), (865, 115)])  # lines 4-7
add_polygon(sketch6, [(535, 115), (535, -115), (465, -115), (465, 115)])  # lines 8-11
add_polygon(sketch6, [(-465, 115), (-465, -115), (-535, -115), (-535, 115)])  # lines 12-15
add_polygon(sketch6, [(-865, 115), (-865, -115), (-935, -115), (-935, 115)])  # lines 16-19
add_polygon(sketch6, [(-1265, 115), (-1265, -115), (-1335, -115), (-1335, 115)])  # lines 20-23
sketch6.addConstraint([
    Sketcher.Constraint("Vertical", 0),
    Sketcher.Constraint("Horizontal", 1),
    Sketcher.Constraint("Vertical", 2),
    Sketcher.Constraint("Horizontal", 3),
    Sketcher.Constraint("Vertical", 4),
    Sketcher.Constraint("Horizontal", 5),
    Sketcher.Constraint("Vertical", 6),
    Sketcher.Constraint("Horizontal", 7),
    Sketcher.Constraint("Vertical", 8),
    Sketcher.Constraint("Horizontal", 9),
    Sketcher.Constraint("Vertical", 10),
    Sketcher.Constraint("Horizontal", 11),
    Sketcher.Constraint("Vertical", 12),
    Sketcher.Constraint("Horizontal", 13),
    Sketcher.Constraint("Vertical", 14),
    Sketcher.Constraint("Horizontal", 15),
    Sketcher.Constraint("Vertical", 16),
    Sketcher.Constraint("Horizontal", 17),
    Sketcher.Constraint("Vertical", 18),
    Sketcher.Constraint("Horizontal", 19),
    Sketcher.Constraint("Vertical", 20),
    Sketcher.Constraint("Horizontal", 21),
    Sketcher.Constraint("Vertical", 22),
    Sketcher.Constraint("Horizontal", 23),
    Sketcher.Constraint("Symmetric", 10, 2, 12, 2, -1, 1),
    Sketcher.Constraint("Symmetric", 8, 2, 14, 2, -1, 1),
    Sketcher.Constraint("Symmetric", 6, 2, 16, 2, -1, 1),
    Sketcher.Constraint("Symmetric", 4, 2, 18, 2, -1, 1),
    Sketcher.Constraint("Symmetric", 2, 2, 20, 2, -1, 1),
    Sketcher.Constraint("Symmetric", 0, 2, 22, 2, -1, 1),
    Sketcher.Constraint("Horizontal", 1, 2, 4, 2),
    Sketcher.Constraint("Horizontal", 3, 2, 6, 2),
    Sketcher.Constraint("Horizontal", 5, 2, 8, 2),
    Sketcher.Constraint("Horizontal", 7, 2, 10, 2),
    Sketcher.Constraint("Horizontal", 9, 2, 12, 2),
    Sketcher.Constraint("Equal", 3, 5),
    Sketcher.Constraint("Equal", 7, 9),
    Sketcher.Constraint("DistanceX", 1, 2, 1, 1, Q("70 mm")),
    Sketcher.Constraint("DistanceY", 0, 2, 0, 1, Q("230 mm")),
    Sketcher.Constraint("DistanceX", -1, 1, 0, 2, Q("1335 mm")),
    Sketcher.Constraint("DistanceX", -1, 1, 4, 2, Q("935 mm")),
    Sketcher.Constraint("DistanceX", -1, 1, 8, 2, Q("535 mm")),
])
pad5 = doc.addObject("PartDesign::Pad", "Pad004")
body.addObject(pad5)
pad5.Profile = sketch6
pad5.Length = 16
pad5.Reversed = True

doc.recompute()
